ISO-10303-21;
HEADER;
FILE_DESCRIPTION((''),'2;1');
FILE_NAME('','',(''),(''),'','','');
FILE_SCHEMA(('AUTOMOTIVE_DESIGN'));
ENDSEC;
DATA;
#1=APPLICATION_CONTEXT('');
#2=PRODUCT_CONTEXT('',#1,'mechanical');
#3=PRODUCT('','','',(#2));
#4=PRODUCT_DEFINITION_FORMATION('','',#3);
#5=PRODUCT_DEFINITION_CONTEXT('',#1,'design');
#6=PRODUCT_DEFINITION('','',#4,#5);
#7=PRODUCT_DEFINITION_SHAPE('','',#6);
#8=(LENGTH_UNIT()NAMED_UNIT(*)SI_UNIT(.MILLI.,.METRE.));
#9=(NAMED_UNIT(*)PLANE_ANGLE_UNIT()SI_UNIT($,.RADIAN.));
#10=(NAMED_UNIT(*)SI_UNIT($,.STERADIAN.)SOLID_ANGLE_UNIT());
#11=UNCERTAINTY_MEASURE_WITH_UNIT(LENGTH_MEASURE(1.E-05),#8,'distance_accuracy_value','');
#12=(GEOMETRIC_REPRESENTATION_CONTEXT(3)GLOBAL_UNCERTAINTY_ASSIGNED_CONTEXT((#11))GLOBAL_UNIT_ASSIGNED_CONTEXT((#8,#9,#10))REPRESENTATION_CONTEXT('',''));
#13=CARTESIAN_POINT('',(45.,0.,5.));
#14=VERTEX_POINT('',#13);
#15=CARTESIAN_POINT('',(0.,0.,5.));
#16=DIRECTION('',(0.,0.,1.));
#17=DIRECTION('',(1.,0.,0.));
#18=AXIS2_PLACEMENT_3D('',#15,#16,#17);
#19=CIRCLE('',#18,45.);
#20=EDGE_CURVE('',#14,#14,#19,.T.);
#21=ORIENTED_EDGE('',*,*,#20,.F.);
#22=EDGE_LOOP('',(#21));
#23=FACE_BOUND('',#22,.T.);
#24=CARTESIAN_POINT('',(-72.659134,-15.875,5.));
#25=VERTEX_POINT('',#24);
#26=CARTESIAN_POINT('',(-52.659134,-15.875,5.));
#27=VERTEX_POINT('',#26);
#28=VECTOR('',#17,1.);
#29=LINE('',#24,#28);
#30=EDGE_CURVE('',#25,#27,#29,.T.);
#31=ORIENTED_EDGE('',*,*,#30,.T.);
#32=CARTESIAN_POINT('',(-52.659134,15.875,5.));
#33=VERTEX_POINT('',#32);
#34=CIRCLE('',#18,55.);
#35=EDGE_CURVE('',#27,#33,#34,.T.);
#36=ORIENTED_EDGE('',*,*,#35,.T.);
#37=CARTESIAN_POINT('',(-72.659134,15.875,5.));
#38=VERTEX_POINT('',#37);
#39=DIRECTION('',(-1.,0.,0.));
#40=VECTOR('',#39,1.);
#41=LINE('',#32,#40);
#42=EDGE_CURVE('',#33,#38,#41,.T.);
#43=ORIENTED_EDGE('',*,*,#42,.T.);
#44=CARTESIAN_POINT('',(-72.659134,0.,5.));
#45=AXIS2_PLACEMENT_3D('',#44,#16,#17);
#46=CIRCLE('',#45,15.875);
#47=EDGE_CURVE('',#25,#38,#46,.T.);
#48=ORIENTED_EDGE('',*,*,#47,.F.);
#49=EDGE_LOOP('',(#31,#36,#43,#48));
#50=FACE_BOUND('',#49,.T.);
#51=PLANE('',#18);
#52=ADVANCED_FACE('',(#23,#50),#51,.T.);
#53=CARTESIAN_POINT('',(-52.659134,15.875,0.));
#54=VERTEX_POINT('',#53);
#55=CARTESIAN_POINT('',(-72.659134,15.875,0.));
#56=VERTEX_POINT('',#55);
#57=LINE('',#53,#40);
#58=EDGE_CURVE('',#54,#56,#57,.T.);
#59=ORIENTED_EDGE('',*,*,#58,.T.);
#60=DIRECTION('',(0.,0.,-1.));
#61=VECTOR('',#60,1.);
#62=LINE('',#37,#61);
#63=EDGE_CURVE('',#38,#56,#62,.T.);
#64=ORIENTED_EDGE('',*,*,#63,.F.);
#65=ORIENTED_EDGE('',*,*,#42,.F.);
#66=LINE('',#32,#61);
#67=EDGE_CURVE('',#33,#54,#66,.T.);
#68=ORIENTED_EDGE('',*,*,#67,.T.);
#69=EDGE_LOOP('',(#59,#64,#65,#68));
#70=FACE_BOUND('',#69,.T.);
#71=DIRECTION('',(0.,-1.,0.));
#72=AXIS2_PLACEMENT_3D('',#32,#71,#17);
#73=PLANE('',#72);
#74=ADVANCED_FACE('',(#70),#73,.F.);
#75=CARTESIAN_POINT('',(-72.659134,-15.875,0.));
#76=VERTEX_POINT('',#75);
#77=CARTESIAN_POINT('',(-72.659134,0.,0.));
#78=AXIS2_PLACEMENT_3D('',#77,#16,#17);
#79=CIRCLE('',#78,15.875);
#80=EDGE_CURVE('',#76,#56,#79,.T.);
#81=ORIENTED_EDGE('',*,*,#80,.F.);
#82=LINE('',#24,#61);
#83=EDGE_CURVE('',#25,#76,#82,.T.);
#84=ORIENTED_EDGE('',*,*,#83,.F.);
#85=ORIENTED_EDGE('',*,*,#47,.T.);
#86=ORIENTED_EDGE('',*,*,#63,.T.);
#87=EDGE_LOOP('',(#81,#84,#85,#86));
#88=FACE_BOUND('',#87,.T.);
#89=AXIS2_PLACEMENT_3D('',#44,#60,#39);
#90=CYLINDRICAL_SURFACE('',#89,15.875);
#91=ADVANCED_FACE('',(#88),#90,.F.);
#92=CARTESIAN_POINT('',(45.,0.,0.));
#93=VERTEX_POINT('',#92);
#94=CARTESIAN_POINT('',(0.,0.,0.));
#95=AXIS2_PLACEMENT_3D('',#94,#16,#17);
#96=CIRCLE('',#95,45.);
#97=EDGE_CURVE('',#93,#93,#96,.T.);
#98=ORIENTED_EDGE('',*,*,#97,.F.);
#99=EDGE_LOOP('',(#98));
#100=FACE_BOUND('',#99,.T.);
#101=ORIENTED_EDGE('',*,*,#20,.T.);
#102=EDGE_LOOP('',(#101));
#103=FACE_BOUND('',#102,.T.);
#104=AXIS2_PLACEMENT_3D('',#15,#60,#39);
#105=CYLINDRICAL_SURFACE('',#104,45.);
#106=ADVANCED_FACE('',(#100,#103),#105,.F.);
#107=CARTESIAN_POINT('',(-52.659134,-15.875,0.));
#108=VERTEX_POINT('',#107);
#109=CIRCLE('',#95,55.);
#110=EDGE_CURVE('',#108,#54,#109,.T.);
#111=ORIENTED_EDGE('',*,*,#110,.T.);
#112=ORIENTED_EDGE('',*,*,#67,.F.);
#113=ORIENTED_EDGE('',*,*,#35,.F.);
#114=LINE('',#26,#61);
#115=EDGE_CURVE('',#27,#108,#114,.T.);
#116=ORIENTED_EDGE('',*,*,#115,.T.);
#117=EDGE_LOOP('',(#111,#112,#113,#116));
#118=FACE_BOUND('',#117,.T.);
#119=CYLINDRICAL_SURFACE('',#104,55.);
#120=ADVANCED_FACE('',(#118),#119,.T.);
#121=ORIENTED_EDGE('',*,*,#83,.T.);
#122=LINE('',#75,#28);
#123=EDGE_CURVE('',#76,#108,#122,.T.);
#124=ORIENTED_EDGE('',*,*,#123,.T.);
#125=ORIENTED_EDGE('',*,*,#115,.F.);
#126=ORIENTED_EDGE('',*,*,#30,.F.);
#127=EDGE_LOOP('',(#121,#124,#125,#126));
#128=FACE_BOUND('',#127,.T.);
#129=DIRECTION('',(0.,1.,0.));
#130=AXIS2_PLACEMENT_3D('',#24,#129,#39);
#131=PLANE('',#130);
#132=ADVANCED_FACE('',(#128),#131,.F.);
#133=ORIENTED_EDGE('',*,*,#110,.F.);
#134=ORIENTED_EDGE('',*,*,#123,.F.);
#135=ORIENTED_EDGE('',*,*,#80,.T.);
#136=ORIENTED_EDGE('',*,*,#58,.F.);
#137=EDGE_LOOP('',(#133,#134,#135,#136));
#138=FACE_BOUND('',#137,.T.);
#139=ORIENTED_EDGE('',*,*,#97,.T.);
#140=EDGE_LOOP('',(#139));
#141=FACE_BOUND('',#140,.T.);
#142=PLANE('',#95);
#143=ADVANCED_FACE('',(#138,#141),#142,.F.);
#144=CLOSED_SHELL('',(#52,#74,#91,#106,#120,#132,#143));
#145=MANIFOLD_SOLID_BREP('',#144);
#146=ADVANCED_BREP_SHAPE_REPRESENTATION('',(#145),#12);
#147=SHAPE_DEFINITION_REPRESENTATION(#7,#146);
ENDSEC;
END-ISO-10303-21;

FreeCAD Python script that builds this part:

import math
import FreeCAD as App
import Part
import Sketcher
Q = App.Units.Quantity

doc = App.newDocument("Part")
body = doc.addObject("PartDesign::Body", "Body")

# Sketch on XY plane
sketch1 = doc.addObject("Sketcher::SketchObject", "Sketch")
body.addObject(sketch1)
sketch1.AttachmentSupport = (doc.XY_Plane, [""])
sketch1.MapMode = "FlatFace"
sketch1.addGeometry([
    Part.LineSegment(App.Vector(-73, -16, 0), App.Vector(-53, -16, 0)),  # 0
    Part.ArcOfCircle(Part.Circle(App.Vector(0, 0, 0), App.Vector(0, 0, 1), 55), math.radians(-163), math.radians(163)),  # 1
    Part.LineSegment(App.Vector(-53, 16, 0), App.Vector(-73, 16, 0)),  # 2
    Part.ArcOfCircle(Part.Circle(App.Vector(-73, 0, 0), App.Vector(0, 0, 1), 16), math.radians(-90), math.radians(90)),  # 3
    Part.Circle(App.Vector(0, 0, 0), App.Vector(0, 0, 1), 45),  # 4
], False)
sketch1.addConstraint([
    Sketcher.Constraint("Coincident", 0, 2, 1, 1),
    Sketcher.Constraint("Coincident", 1, 2, 2, 1),
    Sketcher.Constraint("Tangent", 2, 2, 3, 2),
    Sketcher.Constraint("Tangent", 3, 1, 0, 1),
    Sketcher.Constraint("Horizontal", 0),
    Sketcher.Constraint("Horizontal", 2),
    Sketcher.Constraint("Coincident", 1, 3, -1, 1),
    Sketcher.Constraint("Coincident", 4, 3, -1, 1),
    Sketcher.Constraint("PointOnObject", 3, 3, -1),
    Sketcher.Constraint("Diameter", 4, Q("90 mm")),
    Sketcher.Constraint("Radius", 1, Q("55 mm")),
    Sketcher.Constraint("DistanceX", 0, 1, 0, 2, Q("20 mm")),
    Sketcher.Constraint("Radius", 3, Q("15.875 mm")),
])
pad1 = doc.addObject("PartDesign::Pad", "Pad")
body.addObject(pad1)
pad1.Profile = sketch1
pad1.Length = 5

doc.recompute()
